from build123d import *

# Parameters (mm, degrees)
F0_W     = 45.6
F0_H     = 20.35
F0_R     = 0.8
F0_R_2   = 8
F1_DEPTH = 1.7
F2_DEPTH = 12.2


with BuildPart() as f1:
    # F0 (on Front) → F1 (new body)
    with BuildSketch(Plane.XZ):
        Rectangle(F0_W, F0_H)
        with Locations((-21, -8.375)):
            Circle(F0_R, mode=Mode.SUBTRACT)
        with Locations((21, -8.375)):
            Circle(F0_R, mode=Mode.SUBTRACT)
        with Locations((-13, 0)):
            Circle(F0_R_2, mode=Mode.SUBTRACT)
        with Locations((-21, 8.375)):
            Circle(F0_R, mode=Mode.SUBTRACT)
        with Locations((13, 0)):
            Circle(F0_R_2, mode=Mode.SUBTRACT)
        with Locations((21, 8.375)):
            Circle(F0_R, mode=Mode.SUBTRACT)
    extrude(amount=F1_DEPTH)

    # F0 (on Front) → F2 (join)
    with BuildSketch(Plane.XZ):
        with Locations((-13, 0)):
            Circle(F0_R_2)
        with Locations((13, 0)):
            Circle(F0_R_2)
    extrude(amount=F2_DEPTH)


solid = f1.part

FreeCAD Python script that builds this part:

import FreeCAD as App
import Part
import Sketcher

V = App.Vector
Q = App.Units.Quantity


def add_polygon(sketch, points):
    """Adds a closed chain of lines whose ends are joined by coincident constraints."""
    first, n = sketch.GeometryCount, len(points)
    for a, b in zip(points, points[1:] + points[:1]):
        sketch.addGeometry(Part.LineSegment(App.Vector(*a, 0), App.Vector(*b, 0)), False)
    for i in range(n):
        sketch.addConstraint(Sketcher.Constraint("Coincident", first + i, 2, first + (i + 1) % n, 1))

doc = App.newDocument("Part")
params = doc.addObject("Spreadsheet::Sheet", "Params")
for row, (alias, value) in enumerate([
    ("sketch1_diameter", "16 mm"),
    ("sketch1_diameter2", "1.6 mm"),
    ("sketch1_width", "45.6 mm"),
    ("sketch1_height", "20.35 mm"),
    ("pad1_length", "1.7 mm"),
    ("sketch2_diameter", "16 mm"),
    ("pad2_length", "12.2 mm"),
], start=1):
    params.set(f"A{row}", alias)
    params.set(f"B{row}", "=" + value)
    params.setAlias(f"B{row}", alias)

body = doc.addObject("PartDesign::Body", "Body")

# Sketch on XZ plane
sketch1 = body.newObject("Sketcher::SketchObject", "Sketch")
sketch1.AttachmentSupport = (doc.getObject("XZ_Plane"), [""])
sketch1.MapMode = "FlatFace"
add_polygon(sketch1, [(-22.8, 10.2), (-22.8, -10.2), (22.8, -10.2), (22.8, 10.2)])  # lines 0-3
sketch1.addGeometry(Part.Circle(V(-21, -8.4, 0), V(0, 0, 1), 0.8), False)  # 4
sketch1.addGeometry(Part.Circle(V(21, -8.4, 0), V(0, 0, 1), 0.8), False)  # 5
sketch1.addGeometry(Part.Circle(V(-13, 0, 0), V(0, 0, 1), 8), False)  # 6
sketch1.addGeometry(Part.Circle(V(-21, 8.4, 0), V(0, 0, 1), 0.8), False)  # 7
sketch1.addGeometry(Part.Circle(V(13, 0, 0), V(0, 0, 1), 8), False)  # 8
sketch1.addGeometry(Part.Circle(V(21, 8.4, 0), V(0, 0, 1), 0.8), False)  # 9
sketch1.addConstraint([
    Sketcher.Constraint("Vertical", 0),
    Sketcher.Constraint("Horizontal", 1),
    Sketcher.Constraint("Vertical", 2),
    Sketcher.Constraint("Horizontal", 3),
    Sketcher.Constraint("Equal", 4, 5),
    Sketcher.Constraint("Equal", 5, 7),
    Sketcher.Constraint("Equal", 6, 8),
    Sketcher.Constraint("Equal", 7, 9),
    Sketcher.Constraint("Symmetric", 5, 3, 7, 3, -1, 1),
    Sketcher.Constraint("Symmetric", 6, 3, 8, 3, -1, 1),
    Sketcher.Constraint("Symmetric", 4, 3, 9, 3, -1, 1),
    Sketcher.Constraint("Symmetric", 0, 2, 2, 2, -1, 1),
    Sketcher.Constraint("Symmetric", 4, 3, 5, 3, -2),
    Sketcher.Constraint("PointOnObject", 6, 3, -1),
    Sketcher.Constraint("Diameter", 6, Q("16 mm")),
    Sketcher.Constraint("Diameter", 4, Q("1.6 mm")),
    Sketcher.Constraint("DistanceX", 1, 1, 1, 2, Q("45.6 mm")),
    Sketcher.Constraint("DistanceX", 4, 3, -1, 1, Q("21 mm")),
    Sketcher.Constraint("DistanceX", 6, 3, -1, 1, Q("13 mm")),
    Sketcher.Constraint("DistanceY", 0, 2, 0, 1, Q("20.35 mm")),
    Sketcher.Constraint("DistanceY", 0, 2, 4, 3, Q("1.8 mm")),
])
sketch1.setExpression("Constraints[18]", "Params.sketch1_diameter")
sketch1.setExpression("Constraints[19]", "Params.sketch1_diameter2")
sketch1.setExpression("Constraints[20]", "Params.sketch1_width")
sketch1.setExpression("Constraints[23]", "Params.sketch1_height")
pad1 = body.newObject("PartDesign::Pad", "Pad")
pad1.Profile = sketch1
pad1.setExpression("Length", "Params.pad1_length")

# Sketch on XZ plane
sketch2 = body.newObject("Sketcher::SketchObject", "Sketch001")
sketch2.AttachmentSupport = (doc.getObject("XZ_Plane"), [""])
sketch2.MapMode = "FlatFace"
sketch2.addGeometry([
    Part.Circle(V(-13, 0, 0), V(0, 0, 1), 8),
    Part.Circle(V(13, 0, 0), V(0, 0, 1), 8),
], False)
sketch2.addConstraint([
    Sketcher.Constraint("Equal", 0, 1),
    Sketcher.Constraint("Symmetric", 0, 3, 1, 3, -1, 1),
    Sketcher.Constraint("PointOnObject", 0, 3, -1),
    Sketcher.Constraint("Diameter", 0, Q("16 mm")),
    Sketcher.Constraint("DistanceX", 0, 3, -1, 1, Q("13 mm")),
])
sketch2.setExpression("Constraints[3]", "Params.sketch2_diameter")
pad2 = body.newObject("PartDesign::Pad", "Pad001")
pad2.Profile = sketch2
pad2.setExpression("Length", "Params.pad2_length")

doc.recompute()
